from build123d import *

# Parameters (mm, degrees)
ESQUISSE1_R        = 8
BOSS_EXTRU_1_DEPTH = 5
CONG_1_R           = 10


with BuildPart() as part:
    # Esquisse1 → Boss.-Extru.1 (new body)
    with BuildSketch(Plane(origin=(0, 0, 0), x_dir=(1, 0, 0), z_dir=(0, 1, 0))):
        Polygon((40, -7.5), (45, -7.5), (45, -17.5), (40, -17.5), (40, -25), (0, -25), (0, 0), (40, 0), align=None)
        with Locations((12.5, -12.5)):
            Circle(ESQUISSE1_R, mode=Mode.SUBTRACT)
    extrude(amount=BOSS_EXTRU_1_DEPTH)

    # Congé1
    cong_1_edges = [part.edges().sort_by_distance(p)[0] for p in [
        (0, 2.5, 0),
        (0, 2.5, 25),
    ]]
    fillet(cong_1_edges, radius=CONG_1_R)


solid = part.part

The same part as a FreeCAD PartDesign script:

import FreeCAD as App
import Part
import Sketcher

V = App.Vector


def edges_at(feature, points):
    """Names of the edges that pass closest to the given points."""
    edges = feature.Shape.Edges
    near = lambda p: min(range(len(edges)), key=lambda i: edges[i].distToShape(Part.Vertex(*p))[0])
    return sorted({f"Edge{near(p) + 1}" for p in points})

doc = App.newDocument("Part")
body = doc.addObject("PartDesign::Body", "Body")

sketch1 = body.newObject("Sketcher::SketchObject", "Sketch")
sketch1.AttachmentSupport = (doc.getObject("XZ_Plane"), [""])
sketch1.MapMode = "FlatFace"
sketch1.addGeometry([
    Part.LineSegment(V(45, 8, 0), V(40, 8, 0)),
    Part.LineSegment(V(40, 8, 0), V(40, 0, 0)),
    Part.LineSegment(V(40, 0, 0), V(0, 0, 0)),
    Part.LineSegment(V(0, 0, 0), V(0, 25, 0)),
    Part.LineSegment(V(0, 25, 0), V(40, 25, 0)),
    Part.LineSegment(V(40, 25, 0), V(40, 18, 0)),
    Part.LineSegment(V(40, 18, 0), V(45, 18, 0)),
    Part.LineSegment(V(45, 18, 0), V(45, 8, 0)),
    Part.Circle(V(12, 12, 0), V(0, 0, 1), 8),
], False)
sketch1.addConstraint([
    Sketcher.Constraint("Coincident", 0, 2, 1, 1),
    Sketcher.Constraint("Coincident", 1, 2, 2, 1),
    Sketcher.Constraint("Coincident", 2, 2, 3, 1),
    Sketcher.Constraint("Coincident", 3, 2, 4, 1),
    Sketcher.Constraint("Coincident", 4, 2, 5, 1),
    Sketcher.Constraint("Coincident", 5, 2, 6, 1),
    Sketcher.Constraint("Coincident", 6, 2, 7, 1),
    Sketcher.Constraint("Coincident", 7, 2, 0, 1),
    Sketcher.Constraint("Horizontal", 0),
    Sketcher.Constraint("Vertical", 1),
    Sketcher.Constraint("Horizontal", 2),
    Sketcher.Constraint("Vertical", 3),
    Sketcher.Constraint("Horizontal", 4),
    Sketcher.Constraint("Vertical", 5),
    Sketcher.Constraint("Horizontal", 6),
    Sketcher.Constraint("Vertical", 7),
    Sketcher.Constraint("Coincident", 2, 2, -1, 1),
    Sketcher.Constraint("Vertical", 1, 2, 4, 2),
    Sketcher.Constraint("Equal", 1, 5),
    Sketcher.Constraint("Diameter", 8, 16.0),
    Sketcher.Constraint("DistanceX", 0, 2, 0, 1, 5.0),
    Sketcher.Constraint("DistanceX", 2, 2, 2, 1, 40.0),
    Sketcher.Constraint("DistanceY", 3, 1, 3, 2, 25.0),
    Sketcher.Constraint("DistanceY", 7, 2, 7, 1, 10.0),
    Sketcher.Constraint("DistanceY", 0, 2, 8, 3, 5.0),
    Sketcher.Constraint("DistanceX", -1, 1, 8, 3, 12.5),
])
pad1 = body.newObject("PartDesign::Pad", "Pad")
pad1.Profile = sketch1
pad1.Length = 5
pad1.Reversed = True
doc.recompute()

fillet = body.newObject("PartDesign::Fillet", "Fillet")
fillet.Base = (pad1, edges_at(pad1, [(0, 2.5, 0), (0, 2.5, 25)]))
fillet.Radius = 10

doc.recompute()
